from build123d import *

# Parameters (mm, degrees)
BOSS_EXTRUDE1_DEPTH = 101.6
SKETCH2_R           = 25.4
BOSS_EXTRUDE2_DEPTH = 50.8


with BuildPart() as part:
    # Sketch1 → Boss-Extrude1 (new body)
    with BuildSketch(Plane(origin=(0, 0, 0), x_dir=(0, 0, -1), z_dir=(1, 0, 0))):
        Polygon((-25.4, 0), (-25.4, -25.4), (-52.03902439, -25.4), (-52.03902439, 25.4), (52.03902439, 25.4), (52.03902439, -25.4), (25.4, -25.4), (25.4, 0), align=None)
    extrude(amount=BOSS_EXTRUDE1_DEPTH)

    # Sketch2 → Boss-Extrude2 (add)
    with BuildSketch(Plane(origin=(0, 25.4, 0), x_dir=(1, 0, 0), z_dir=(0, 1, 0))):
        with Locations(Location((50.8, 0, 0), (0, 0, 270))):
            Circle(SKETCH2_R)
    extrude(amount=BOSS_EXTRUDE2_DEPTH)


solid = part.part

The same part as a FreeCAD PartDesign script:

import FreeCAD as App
import Part
import Sketcher
Q = App.Units.Quantity

doc = App.newDocument("Part")
body = doc.addObject("PartDesign::Body", "Body")

sketch1 = body.newObject("Sketcher::SketchObject", "Sketch")
sketch1.AttachmentSupport = (doc.getObject("YZ_Plane"), [""])
sketch1.MapMode = "FlatFace"
sketch1.addGeometry([
    Part.LineSegment(App.Vector(-25, 25, 0), App.Vector(0, 25, 0)),
    Part.LineSegment(App.Vector(0, 25, 0), App.Vector(0, -25, 0)),
    Part.LineSegment(App.Vector(0, -25, 0), App.Vector(-25, -25, 0)),
    Part.LineSegment(App.Vector(-25, -25, 0), App.Vector(-25, -52, 0)),
    Part.LineSegment(App.Vector(-25, -52, 0), App.Vector(25, -52, 0)),
    Part.LineSegment(App.Vector(25, -52, 0), App.Vector(25, 52, 0)),
    Part.LineSegment(App.Vector(25, 52, 0), App.Vector(-25, 52, 0)),
    Part.LineSegment(App.Vector(-25, 52, 0), App.Vector(-25, 25, 0)),
], False)
sketch1.addConstraint([
    Sketcher.Constraint("Coincident", 0, 2, 1, 1),
    Sketcher.Constraint("Coincident", 1, 2, 2, 1),
    Sketcher.Constraint("Coincident", 2, 2, 3, 1),
    Sketcher.Constraint("Coincident", 3, 2, 4, 1),
    Sketcher.Constraint("Coincident", 4, 2, 5, 1),
    Sketcher.Constraint("Coincident", 5, 2, 6, 1),
    Sketcher.Constraint("Coincident", 6, 2, 7, 1),
    Sketcher.Constraint("Coincident", 7, 2, 0, 1),
    Sketcher.Constraint("Horizontal", 0),
    Sketcher.Constraint("Vertical", 1),
    Sketcher.Constraint("Horizontal", 2),
    Sketcher.Constraint("Vertical", 3),
    Sketcher.Constraint("Horizontal", 4),
    Sketcher.Constraint("Vertical", 5),
    Sketcher.Constraint("Horizontal", 6),
    Sketcher.Constraint("Vertical", 7),
    Sketcher.Constraint("Symmetric", 0, 2, 1, 2, -1, 1),
    Sketcher.Constraint("Symmetric", 3, 2, 5, 2, -1, 1),
    Sketcher.Constraint("Vertical", 3, 2, 6, 2),
    Sketcher.Constraint("Equal", 6, 1),
    Sketcher.Constraint("DistanceX", 0, 1, 0, 2, Q("1 in")),
    Sketcher.Constraint("DistanceY", 5, 1, 5, 2, 104.078049),
])
pad1 = body.newObject("PartDesign::Pad", "Pad")
pad1.Profile = sketch1
pad1.Length = Q("4 in")

sketch2 = body.newObject("Sketcher::SketchObject", "Sketch001")
sketch2.AttachmentSupport = (doc.getObject("XZ_Plane"), [""])
sketch2.MapMode = "FlatFace"
sketch2.AttachmentOffset = App.Placement(App.Vector(0, 0, -1 * 25.4), App.Rotation())
sketch2.addGeometry(Part.Circle(App.Vector(51, 0, 0), App.Vector(0, 0, 1), 25), False)
sketch2.addConstraint([
    Sketcher.Constraint("PointOnObject", 0, 3, -1),
    Sketcher.Constraint("Diameter", 0, Q("2 in")),
    Sketcher.Constraint("DistanceX", -1, 1, 0, 3, Q("2 in")),
])
pad2 = body.newObject("PartDesign::Pad", "Pad001")
pad2.Profile = sketch2
pad2.Length = Q("2 in")
pad2.Reversed = True

doc.recompute()
